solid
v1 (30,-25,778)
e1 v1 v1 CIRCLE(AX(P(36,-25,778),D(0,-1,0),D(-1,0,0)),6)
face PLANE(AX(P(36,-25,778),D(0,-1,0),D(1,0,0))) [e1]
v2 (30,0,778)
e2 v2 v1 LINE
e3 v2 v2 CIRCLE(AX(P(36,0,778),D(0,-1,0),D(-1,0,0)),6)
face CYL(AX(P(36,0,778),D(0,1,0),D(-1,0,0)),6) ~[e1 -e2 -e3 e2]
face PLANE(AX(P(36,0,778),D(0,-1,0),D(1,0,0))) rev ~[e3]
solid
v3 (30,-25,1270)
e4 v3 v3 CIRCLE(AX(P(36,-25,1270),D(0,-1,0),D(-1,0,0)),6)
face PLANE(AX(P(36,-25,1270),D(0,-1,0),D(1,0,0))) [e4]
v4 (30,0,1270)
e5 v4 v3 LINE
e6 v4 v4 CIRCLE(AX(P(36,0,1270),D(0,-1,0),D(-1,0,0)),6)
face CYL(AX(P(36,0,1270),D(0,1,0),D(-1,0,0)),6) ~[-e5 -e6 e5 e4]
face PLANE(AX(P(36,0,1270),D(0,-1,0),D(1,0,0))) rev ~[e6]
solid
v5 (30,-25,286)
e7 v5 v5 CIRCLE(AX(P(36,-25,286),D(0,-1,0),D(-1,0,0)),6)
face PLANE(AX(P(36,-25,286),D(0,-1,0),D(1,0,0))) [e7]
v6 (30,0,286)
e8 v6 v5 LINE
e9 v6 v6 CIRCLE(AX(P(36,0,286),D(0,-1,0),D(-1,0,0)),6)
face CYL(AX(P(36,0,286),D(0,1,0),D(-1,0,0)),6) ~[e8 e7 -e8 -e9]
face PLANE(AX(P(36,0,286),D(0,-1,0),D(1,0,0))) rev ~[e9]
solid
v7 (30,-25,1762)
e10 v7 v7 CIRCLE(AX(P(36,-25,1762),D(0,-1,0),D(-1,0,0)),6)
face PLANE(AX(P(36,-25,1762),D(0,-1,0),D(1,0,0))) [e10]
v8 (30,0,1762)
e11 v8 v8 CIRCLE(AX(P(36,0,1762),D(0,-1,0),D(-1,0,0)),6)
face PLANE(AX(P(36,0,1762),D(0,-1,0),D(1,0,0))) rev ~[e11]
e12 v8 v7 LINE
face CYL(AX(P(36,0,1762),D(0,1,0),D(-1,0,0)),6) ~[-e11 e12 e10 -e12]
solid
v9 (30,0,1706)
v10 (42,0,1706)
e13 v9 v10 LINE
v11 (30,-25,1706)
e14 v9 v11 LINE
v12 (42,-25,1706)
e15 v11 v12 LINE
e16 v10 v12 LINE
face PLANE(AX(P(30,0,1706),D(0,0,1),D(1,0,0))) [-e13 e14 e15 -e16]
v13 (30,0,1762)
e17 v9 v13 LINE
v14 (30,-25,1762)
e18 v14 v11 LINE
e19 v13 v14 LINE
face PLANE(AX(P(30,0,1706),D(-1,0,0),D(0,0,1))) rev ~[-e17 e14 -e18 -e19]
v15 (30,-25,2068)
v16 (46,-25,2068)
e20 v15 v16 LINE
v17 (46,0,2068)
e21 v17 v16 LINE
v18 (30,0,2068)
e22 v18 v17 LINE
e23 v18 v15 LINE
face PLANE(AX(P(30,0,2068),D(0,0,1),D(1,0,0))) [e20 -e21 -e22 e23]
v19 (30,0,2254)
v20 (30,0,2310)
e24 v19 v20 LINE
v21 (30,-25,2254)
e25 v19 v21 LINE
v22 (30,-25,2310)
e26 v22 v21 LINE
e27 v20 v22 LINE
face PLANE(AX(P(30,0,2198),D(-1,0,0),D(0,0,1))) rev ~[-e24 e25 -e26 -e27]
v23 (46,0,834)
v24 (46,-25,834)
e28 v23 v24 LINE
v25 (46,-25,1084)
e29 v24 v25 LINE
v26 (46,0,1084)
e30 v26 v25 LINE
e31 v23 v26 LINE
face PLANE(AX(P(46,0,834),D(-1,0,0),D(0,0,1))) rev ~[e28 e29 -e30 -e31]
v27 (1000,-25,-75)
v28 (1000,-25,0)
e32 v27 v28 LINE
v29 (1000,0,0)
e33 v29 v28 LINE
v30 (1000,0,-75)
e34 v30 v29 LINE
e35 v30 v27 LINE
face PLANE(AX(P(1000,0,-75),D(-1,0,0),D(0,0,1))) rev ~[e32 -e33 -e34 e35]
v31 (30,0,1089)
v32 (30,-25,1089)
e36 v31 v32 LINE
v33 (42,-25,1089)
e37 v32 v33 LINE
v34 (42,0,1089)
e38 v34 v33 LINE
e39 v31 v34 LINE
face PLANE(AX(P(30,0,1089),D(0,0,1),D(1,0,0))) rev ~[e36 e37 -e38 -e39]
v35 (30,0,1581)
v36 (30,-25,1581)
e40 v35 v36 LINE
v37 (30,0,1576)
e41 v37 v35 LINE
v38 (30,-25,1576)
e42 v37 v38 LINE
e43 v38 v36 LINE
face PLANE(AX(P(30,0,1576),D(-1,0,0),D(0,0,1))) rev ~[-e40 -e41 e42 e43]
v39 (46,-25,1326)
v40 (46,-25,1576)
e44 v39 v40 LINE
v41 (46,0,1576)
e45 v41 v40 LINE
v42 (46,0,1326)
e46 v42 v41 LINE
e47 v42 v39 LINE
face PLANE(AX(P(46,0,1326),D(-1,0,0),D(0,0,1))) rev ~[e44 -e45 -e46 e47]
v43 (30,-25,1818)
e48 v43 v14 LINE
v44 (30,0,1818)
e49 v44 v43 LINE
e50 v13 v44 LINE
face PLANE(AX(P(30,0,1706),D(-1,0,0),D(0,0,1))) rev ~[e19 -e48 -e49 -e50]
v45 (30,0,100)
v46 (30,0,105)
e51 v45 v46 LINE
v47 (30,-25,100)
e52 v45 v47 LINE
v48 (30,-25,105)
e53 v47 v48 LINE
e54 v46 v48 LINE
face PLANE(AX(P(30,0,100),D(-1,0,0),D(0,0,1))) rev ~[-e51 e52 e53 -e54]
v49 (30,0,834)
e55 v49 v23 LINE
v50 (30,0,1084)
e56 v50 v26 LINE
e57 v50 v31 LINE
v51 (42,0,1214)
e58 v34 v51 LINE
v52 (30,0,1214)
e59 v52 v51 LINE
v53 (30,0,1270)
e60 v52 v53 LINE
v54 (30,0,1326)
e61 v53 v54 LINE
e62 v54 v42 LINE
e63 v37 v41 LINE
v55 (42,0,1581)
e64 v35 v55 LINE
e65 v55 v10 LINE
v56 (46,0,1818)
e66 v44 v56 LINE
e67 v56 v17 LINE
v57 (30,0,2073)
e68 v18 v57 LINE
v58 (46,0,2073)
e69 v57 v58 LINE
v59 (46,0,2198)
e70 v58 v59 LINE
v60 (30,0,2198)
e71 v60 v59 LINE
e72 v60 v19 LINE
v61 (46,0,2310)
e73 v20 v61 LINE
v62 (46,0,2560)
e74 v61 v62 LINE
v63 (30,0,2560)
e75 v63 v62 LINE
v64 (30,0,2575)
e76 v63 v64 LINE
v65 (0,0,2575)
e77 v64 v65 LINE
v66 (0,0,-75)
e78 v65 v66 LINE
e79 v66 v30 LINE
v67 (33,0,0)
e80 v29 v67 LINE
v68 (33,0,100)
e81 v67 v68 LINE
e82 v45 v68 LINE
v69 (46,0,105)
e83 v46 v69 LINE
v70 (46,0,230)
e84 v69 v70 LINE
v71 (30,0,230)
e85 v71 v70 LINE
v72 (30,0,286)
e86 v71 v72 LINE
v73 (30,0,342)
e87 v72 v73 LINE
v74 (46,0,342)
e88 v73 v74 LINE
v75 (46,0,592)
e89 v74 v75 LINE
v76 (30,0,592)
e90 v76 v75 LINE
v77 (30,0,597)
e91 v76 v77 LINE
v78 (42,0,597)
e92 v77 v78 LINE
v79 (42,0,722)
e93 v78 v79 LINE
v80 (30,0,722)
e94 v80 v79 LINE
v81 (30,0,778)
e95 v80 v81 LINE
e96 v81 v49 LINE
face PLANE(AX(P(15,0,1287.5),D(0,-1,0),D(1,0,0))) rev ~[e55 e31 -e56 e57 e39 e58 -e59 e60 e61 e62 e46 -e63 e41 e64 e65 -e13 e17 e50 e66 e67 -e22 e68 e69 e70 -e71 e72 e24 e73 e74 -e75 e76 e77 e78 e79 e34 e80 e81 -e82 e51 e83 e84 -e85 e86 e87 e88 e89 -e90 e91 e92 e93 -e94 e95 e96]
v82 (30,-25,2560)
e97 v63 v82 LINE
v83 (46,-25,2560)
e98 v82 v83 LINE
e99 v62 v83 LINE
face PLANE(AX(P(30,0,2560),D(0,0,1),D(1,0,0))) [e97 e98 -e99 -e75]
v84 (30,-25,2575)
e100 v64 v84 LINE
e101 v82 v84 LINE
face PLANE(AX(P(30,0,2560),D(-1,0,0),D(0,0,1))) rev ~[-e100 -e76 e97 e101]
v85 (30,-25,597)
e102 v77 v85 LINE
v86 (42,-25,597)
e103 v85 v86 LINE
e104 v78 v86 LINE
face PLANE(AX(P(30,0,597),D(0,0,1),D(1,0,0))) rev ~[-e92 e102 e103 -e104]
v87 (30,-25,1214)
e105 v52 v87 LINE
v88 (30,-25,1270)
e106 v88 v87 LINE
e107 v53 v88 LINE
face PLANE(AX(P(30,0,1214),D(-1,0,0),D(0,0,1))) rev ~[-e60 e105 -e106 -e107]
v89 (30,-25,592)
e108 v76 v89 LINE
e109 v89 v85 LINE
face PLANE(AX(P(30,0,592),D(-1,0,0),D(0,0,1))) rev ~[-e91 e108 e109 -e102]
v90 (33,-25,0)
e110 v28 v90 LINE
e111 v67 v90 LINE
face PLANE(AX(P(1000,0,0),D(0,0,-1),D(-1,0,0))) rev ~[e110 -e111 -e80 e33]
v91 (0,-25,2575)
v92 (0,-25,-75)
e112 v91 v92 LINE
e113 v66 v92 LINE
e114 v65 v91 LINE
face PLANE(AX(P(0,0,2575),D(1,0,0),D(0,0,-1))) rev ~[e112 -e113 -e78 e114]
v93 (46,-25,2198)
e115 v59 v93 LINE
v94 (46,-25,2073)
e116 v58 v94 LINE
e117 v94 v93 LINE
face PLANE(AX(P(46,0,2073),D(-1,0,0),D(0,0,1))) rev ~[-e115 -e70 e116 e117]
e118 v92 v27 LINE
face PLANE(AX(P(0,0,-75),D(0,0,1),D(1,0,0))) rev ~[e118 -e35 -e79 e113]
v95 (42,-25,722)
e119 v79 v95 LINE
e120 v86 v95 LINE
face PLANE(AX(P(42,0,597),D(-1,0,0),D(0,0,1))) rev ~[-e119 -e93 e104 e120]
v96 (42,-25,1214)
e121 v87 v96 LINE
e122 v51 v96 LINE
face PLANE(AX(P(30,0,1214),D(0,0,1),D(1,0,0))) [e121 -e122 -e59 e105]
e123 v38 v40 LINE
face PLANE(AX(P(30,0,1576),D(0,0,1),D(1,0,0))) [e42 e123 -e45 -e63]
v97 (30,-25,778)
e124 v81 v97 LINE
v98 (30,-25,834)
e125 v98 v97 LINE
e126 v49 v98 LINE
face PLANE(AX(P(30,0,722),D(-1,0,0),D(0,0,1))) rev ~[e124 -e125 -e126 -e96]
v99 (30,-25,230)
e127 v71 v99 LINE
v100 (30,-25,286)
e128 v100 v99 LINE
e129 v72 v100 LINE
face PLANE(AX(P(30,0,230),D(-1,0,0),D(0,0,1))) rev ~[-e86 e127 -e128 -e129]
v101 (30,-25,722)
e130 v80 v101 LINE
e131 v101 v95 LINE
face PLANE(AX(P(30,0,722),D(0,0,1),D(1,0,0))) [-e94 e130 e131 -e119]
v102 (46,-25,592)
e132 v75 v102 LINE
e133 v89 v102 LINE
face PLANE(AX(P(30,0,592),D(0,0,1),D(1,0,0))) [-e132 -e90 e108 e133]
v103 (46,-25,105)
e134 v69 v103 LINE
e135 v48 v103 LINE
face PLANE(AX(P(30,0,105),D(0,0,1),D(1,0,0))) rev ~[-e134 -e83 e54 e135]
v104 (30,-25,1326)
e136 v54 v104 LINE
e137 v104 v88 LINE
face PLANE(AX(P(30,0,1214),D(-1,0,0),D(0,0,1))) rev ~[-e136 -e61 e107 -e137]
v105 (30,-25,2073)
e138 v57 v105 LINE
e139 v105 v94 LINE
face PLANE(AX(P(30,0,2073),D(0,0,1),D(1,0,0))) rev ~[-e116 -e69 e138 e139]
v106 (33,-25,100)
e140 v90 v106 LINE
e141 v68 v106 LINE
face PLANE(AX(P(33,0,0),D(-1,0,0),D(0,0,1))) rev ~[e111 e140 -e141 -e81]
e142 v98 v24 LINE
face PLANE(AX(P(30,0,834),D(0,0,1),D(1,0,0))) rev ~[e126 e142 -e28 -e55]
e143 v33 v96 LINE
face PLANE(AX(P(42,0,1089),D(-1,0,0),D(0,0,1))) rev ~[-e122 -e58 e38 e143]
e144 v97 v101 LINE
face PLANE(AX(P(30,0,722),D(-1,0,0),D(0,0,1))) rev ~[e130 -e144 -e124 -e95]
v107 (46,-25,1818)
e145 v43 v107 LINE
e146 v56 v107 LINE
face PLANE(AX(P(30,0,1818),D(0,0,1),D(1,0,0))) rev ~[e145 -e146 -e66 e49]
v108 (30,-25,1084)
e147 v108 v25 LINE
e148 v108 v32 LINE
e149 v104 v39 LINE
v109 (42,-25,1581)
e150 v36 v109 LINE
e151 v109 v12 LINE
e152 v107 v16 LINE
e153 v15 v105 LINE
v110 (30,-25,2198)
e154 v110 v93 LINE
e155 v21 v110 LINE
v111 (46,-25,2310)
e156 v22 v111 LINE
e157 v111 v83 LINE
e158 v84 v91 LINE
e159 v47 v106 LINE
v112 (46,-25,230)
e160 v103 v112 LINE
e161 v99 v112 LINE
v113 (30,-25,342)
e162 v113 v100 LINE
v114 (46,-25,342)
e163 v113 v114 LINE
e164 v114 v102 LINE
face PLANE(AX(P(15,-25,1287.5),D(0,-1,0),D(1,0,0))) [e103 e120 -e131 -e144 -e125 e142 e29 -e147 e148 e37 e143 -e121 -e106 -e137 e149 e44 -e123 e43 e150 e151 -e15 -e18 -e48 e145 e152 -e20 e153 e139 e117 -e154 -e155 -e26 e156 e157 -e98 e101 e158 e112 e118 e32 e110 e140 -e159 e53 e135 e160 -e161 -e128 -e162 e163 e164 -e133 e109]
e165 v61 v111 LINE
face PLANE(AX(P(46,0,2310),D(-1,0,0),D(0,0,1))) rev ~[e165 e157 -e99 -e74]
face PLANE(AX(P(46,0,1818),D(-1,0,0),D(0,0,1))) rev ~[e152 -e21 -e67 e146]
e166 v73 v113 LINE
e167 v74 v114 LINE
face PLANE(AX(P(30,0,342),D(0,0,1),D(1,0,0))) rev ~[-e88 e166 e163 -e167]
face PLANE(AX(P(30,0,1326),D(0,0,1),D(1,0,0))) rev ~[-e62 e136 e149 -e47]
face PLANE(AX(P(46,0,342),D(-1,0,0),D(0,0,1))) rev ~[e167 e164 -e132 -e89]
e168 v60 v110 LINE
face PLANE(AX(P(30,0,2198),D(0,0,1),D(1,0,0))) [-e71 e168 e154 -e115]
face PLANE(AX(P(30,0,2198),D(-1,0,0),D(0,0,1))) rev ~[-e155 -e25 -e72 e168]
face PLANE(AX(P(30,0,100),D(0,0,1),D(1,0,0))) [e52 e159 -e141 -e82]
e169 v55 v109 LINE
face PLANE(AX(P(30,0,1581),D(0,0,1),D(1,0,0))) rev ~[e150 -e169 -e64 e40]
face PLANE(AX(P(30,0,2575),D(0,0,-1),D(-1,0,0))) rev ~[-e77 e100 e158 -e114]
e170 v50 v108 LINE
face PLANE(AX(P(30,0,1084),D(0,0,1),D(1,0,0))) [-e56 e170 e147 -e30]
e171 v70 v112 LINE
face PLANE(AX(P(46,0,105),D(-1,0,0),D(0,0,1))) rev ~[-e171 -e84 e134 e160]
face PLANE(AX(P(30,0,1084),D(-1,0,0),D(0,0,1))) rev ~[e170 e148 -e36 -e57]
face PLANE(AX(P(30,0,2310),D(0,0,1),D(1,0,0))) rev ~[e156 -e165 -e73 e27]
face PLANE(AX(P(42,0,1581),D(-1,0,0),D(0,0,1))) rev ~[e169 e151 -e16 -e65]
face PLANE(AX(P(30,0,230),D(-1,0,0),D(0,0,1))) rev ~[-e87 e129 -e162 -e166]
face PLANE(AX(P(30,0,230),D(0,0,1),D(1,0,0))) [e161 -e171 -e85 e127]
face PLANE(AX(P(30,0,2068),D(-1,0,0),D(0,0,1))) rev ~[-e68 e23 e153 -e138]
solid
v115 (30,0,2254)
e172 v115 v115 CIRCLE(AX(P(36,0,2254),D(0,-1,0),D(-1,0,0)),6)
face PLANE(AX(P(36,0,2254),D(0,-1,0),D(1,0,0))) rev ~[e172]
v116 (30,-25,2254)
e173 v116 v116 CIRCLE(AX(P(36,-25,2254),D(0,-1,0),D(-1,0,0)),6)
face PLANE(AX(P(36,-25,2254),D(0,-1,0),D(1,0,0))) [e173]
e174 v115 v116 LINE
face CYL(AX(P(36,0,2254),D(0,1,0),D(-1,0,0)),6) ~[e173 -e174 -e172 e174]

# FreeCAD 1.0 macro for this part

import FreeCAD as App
import Part
import Sketcher


def add_polygon(sketch, points):
    """Adds a closed chain of lines whose ends are joined by coincident constraints."""
    first, n = sketch.GeometryCount, len(points)
    for a, b in zip(points, points[1:] + points[:1]):
        sketch.addGeometry(Part.LineSegment(App.Vector(*a, 0), App.Vector(*b, 0)), False)
    for i in range(n):
        sketch.addConstraint(Sketcher.Constraint("Coincident", first + i, 2, first + (i + 1) % n, 1))

doc = App.newDocument("Part")
body = doc.addObject("PartDesign::Body", "Body")
body.AllowCompound = True

# Sketch on XZ plane
sketch1 = body.newObject("Sketcher::SketchObject", "Sketch")
sketch1.AttachmentSupport = (doc.getObject("XZ_Plane"), [""])
sketch1.MapMode = "FlatFace"
add_polygon(sketch1, [(0, 2575), (0, -75), (1000, -75), (1000, 0), (33, 0), (33, 100), (30, 100), (30, 105), (46, 105), (46, 230), (30, 230), (30, 286), (30, 342), (46, 342), (46, 592), (30, 592), (30, 597), (42, 597), (42, 722), (30, 722), (30, 778), (30, 834), (46, 834), (46, 1084), (30, 1084), (30, 1089), (42, 1089), (42, 1214), (30, 1214), (30, 1270), (30, 1326), (46, 1326), (46, 1576), (30, 1576), (30, 1581), (42, 1581), (42, 1706), (30, 1706), (30, 1762), (30, 1818), (46, 1818), (46, 2068), (30, 2068), (30, 2073), (46, 2073), (46, 2198), (30, 2198), (30, 2254), (30, 2310), (46, 2310), (46, 2560), (30, 2560), (30, 2575)])  # lines 0-52
sketch1.addGeometry(Part.Circle(App.Vector(36, 2254, 0), App.Vector(0, 0, 1), 6), False)  # 53
sketch1.addGeometry(Part.Circle(App.Vector(36, 1762, 0), App.Vector(0, 0, 1), 6), False)  # 54
sketch1.addGeometry(Part.Circle(App.Vector(36, 1270, 0), App.Vector(0, 0, 1), 6), False)  # 55
sketch1.addGeometry(Part.Circle(App.Vector(36, 778, 0), App.Vector(0, 0, 1), 6), False)  # 56
sketch1.addGeometry(Part.Circle(App.Vector(36, 286, 0), App.Vector(0, 0, 1), 6), False)  # 57
sketch1.addConstraint([
    Sketcher.Constraint("Vertical", 0),
    Sketcher.Constraint("Horizontal", 1),
    Sketcher.Constraint("Vertical", 2),
    Sketcher.Constraint("Horizontal", 3),
    Sketcher.Constraint("Vertical", 4),
    Sketcher.Constraint("Horizontal", 5),
    Sketcher.Constraint("Vertical", 6),
    Sketcher.Constraint("Horizontal", 7),
    Sketcher.Constraint("Vertical", 8),
    Sketcher.Constraint("Horizontal", 9),
    Sketcher.Constraint("Vertical", 10),
    Sketcher.Constraint("Vertical", 11),
    Sketcher.Constraint("Horizontal", 12),
    Sketcher.Constraint("Vertical", 13),
    Sketcher.Constraint("Horizontal", 14),
    Sketcher.Constraint("Vertical", 15),
    Sketcher.Constraint("Horizontal", 16),
    Sketcher.Constraint("Vertical", 17),
    Sketcher.Constraint("Horizontal", 18),
    Sketcher.Constraint("Vertical", 19),
    Sketcher.Constraint("Vertical", 20),
    Sketcher.Constraint("Horizontal", 21),
    Sketcher.Constraint("Vertical", 22),
    Sketcher.Constraint("Horizontal", 23),
    Sketcher.Constraint("Vertical", 24),
    Sketcher.Constraint("Horizontal", 25),
    Sketcher.Constraint("Vertical", 26),
    Sketcher.Constraint("Horizontal", 27),
    Sketcher.Constraint("Vertical", 28),
    Sketcher.Constraint("Vertical", 29),
    Sketcher.Constraint("Horizontal", 30),
    Sketcher.Constraint("Vertical", 31),
    Sketcher.Constraint("Horizontal", 32),
    Sketcher.Constraint("Vertical", 33),
    Sketcher.Constraint("Horizontal", 34),
    Sketcher.Constraint("Vertical", 35),
    Sketcher.Constraint("Horizontal", 36),
    Sketcher.Constraint("Vertical", 37),
    Sketcher.Constraint("Vertical", 38),
    Sketcher.Constraint("Horizontal", 39),
    Sketcher.Constraint("Vertical", 40),
    Sketcher.Constraint("Horizontal", 41),
    Sketcher.Constraint("Vertical", 42),
    Sketcher.Constraint("Horizontal", 43),
    Sketcher.Constraint("Vertical", 44),
    Sketcher.Constraint("Horizontal", 45),
    Sketcher.Constraint("Vertical", 46),
    Sketcher.Constraint("Vertical", 47),
    Sketcher.Constraint("Horizontal", 48),
    Sketcher.Constraint("Vertical", 49),
    Sketcher.Constraint("Horizontal", 50),
    Sketcher.Constraint("Vertical", 51),
    Sketcher.Constraint("Horizontal", 52),
    Sketcher.Constraint("Equal", 53, 54),
    Sketcher.Constraint("Equal", 54, 55),
    Sketcher.Constraint("Equal", 55, 56),
    Sketcher.Constraint("Equal", 56, 57),
    Sketcher.Constraint("PointOnObject", 0, 2, -2),
    Sketcher.Constraint("PointOnObject", 2, 2, -1),
    Sketcher.Constraint("Horizontal", 57, 3, 10, 2),
    Sketcher.Constraint("Horizontal", 56, 3, 19, 2),
    Sketcher.Constraint("Horizontal", 55, 3, 28, 2),
    Sketcher.Constraint("Horizontal", 54, 3, 37, 2),
    Sketcher.Constraint("Horizontal", 53, 3, 46, 2),
    Sketcher.Constraint("Vertical", 53, 3, 54, 3),
    Sketcher.Constraint("Vertical", 54, 3, 55, 3),
    Sketcher.Constraint("Vertical", 55, 3, 56, 3),
    Sketcher.Constraint("Vertical", 56, 3, 57, 3),
    Sketcher.Constraint("Vertical", 6, 2, 9, 2),
    Sketcher.Constraint("Vertical", 8, 2, 12, 2),
    Sketcher.Constraint("Vertical", 11, 2, 14, 2),
    Sketcher.Constraint("Vertical", 15, 2, 18, 2),
    Sketcher.Constraint("Vertical", 13, 2, 21, 2),
    Sketcher.Constraint("Vertical", 20, 2, 23, 2),
    Sketcher.Constraint("Vertical", 17, 2, 25, 2),
    Sketcher.Constraint("Vertical", 24, 2, 27, 2),
    Sketcher.Constraint("Vertical", 22, 2, 30, 2),
    Sketcher.Constraint("Vertical", 29, 2, 32, 2),
    Sketcher.Constraint("Vertical", 26, 2, 34, 2),
    Sketcher.Constraint("Vertical", 33, 2, 36, 2),
    Sketcher.Constraint("Vertical", 31, 2, 39, 2),
    Sketcher.Constraint("Vertical", 38, 2, 41, 2),
    Sketcher.Constraint("Vertical", 40, 2, 43, 2),
    Sketcher.Constraint("Vertical", 42, 2, 45, 2),
    Sketcher.Constraint("Vertical", 44, 2, 48, 2),
    Sketcher.Constraint("Vertical", 47, 2, 50, 2),
    Sketcher.Constraint("Equal", 10, 11),
    Sketcher.Constraint("Equal", 6, 15),
    Sketcher.Constraint("Equal", 8, 17),
    Sketcher.Constraint("Equal", 11, 19),
    Sketcher.Constraint("Equal", 19, 20),
    Sketcher.Constraint("Equal", 13, 22),
    Sketcher.Constraint("Equal", 15, 24),
    Sketcher.Constraint("Equal", 17, 26),
    Sketcher.Constraint("Equal", 20, 28),
    Sketcher.Constraint("Equal", 28, 29),
    Sketcher.Constraint("Equal", 22, 31),
    Sketcher.Constraint("Equal", 24, 33),
    Sketcher.Constraint("Equal", 26, 35),
    Sketcher.Constraint("Equal", 29, 37),
    Sketcher.Constraint("Equal", 37, 38),
    Sketcher.Constraint("Equal", 31, 40),
    Sketcher.Constraint("Equal", 33, 42),
    Sketcher.Constraint("Equal", 35, 44),
    Sketcher.Constraint("Equal", 38, 46),
    Sketcher.Constraint("Equal", 46, 47),
    Sketcher.Constraint("Equal", 40, 49),
    Sketcher.Constraint("Diameter", 53, 12.0),
    Sketcher.Constraint("DistanceX", 1, 1, 1, 2, 1000.0),
    Sketcher.Constraint("DistanceX", 3, 2, 3, 1, 967.0),
    Sketcher.Constraint("DistanceX", 5, 2, 5, 1, 3.0),
    Sketcher.Constraint("DistanceX", 7, 1, 7, 2, 16.0),
    Sketcher.Constraint("DistanceX", 16, 1, 16, 2, 12.0),
    Sketcher.Constraint("DistanceY", 0, 2, 0, 1, 2650.0),
    Sketcher.Constraint("DistanceY", 2, 1, 2, 2, 75.0),
    Sketcher.Constraint("DistanceY", 4, 1, 4, 2, 100.0),
    Sketcher.Constraint("DistanceY", 6, 1, 6, 2, 5.0),
    Sketcher.Constraint("DistanceY", 8, 1, 8, 2, 125.0),
    Sketcher.Constraint("DistanceY", 10, 1, 10, 2, 56.0),
    Sketcher.Constraint("DistanceY", 13, 1, 13, 2, 250.0),
    Sketcher.Constraint("DistanceX", -1, 1, 53, 3, 36.0),
])
pad1 = body.newObject("PartDesign::Pad", "Pad")
pad1.Profile = sketch1
pad1.Length = 25

doc.recompute()
